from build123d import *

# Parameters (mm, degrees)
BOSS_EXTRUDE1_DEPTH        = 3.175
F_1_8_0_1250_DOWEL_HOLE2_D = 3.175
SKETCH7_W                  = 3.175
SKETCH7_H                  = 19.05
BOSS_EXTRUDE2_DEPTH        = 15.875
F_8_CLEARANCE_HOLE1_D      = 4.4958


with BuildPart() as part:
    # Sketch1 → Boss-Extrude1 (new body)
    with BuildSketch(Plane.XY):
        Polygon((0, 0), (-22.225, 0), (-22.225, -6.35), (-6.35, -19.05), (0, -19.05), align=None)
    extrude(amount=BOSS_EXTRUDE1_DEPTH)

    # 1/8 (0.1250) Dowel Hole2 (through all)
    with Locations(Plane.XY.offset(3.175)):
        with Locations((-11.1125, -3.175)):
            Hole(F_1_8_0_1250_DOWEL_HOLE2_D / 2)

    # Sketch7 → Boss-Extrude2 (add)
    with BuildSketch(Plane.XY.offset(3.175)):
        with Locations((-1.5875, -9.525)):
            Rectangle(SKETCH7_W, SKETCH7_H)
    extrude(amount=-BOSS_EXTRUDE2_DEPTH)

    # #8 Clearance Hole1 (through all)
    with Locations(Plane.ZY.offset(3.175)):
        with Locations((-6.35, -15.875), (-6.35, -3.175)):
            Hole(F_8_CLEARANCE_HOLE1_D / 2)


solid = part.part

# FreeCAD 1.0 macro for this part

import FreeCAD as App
import Part
import Sketcher
Q = App.Units.Quantity

doc = App.newDocument("Part")
body = doc.addObject("PartDesign::Body", "Body")

sketch1 = doc.addObject("Sketcher::SketchObject", "Sketch")
body.addObject(sketch1)
sketch1.AttachmentSupport = (doc.XY_Plane, [""])
sketch1.MapMode = "FlatFace"
sketch1.addGeometry([
    Part.LineSegment(App.Vector(0, 0, 0), App.Vector(-22.225, 0, 0)),
    Part.LineSegment(App.Vector(-22.225, 0, 0), App.Vector(-22.225, -6.35, 0)),
    Part.LineSegment(App.Vector(-22.225, -6.35, 0), App.Vector(-6.35, -19.05, 0)),
    Part.LineSegment(App.Vector(-6.35, -19.05, 0), App.Vector(0, -19.05, 0)),
    Part.LineSegment(App.Vector(0, -19.05, 0), App.Vector(0, 0, 0)),
], False)
sketch1.addConstraint([
    Sketcher.Constraint("Coincident", 0, 2, 1, 1),
    Sketcher.Constraint("Coincident", 1, 2, 2, 1),
    Sketcher.Constraint("Coincident", 2, 2, 3, 1),
    Sketcher.Constraint("Coincident", 3, 2, 4, 1),
    Sketcher.Constraint("Coincident", 4, 2, 0, 1),
    Sketcher.Constraint("Horizontal", 0),
    Sketcher.Constraint("Vertical", 1),
    Sketcher.Constraint("Horizontal", 3),
    Sketcher.Constraint("Vertical", 4),
    Sketcher.Constraint("Coincident", 4, 2, -1, 1),
    Sketcher.Constraint("Equal", 3, 1),
    Sketcher.Constraint("DistanceX", 3, 1, 3, 2, Q("0.25 in")),
    Sketcher.Constraint("DistanceY", 4, 1, 4, 2, Q("0.75 in")),
    Sketcher.Constraint("DistanceX", 0, 2, 0, 1, Q("0.875 in")),
])
pad1 = doc.addObject("PartDesign::Pad", "Pad")
body.addObject(pad1)
pad1.Profile = sketch1
pad1.Length = Q("0.125 in")

sketch2 = doc.addObject("Sketcher::SketchObject", "Sketch001")
body.addObject(sketch2)
sketch2.AttachmentSupport = (doc.XY_Plane, [""])
sketch2.MapMode = "FlatFace"
sketch2.AttachmentOffset = App.Placement(App.Vector(0, 0, 0.125 * 25.4), App.Rotation())
sketch2.addGeometry(Part.Circle(App.Vector(-11.1125, -3.175, 0), App.Vector(0, 0, 1), 1.5875), False)
sketch2.addConstraint([
    Sketcher.Constraint("Diameter", 0, Q("0.125 in")),
    Sketcher.Constraint("DistanceX", 0, 3, -1, 1, Q("0.4375 in")),
    Sketcher.Constraint("DistanceY", 0, 3, -1, 1, Q("0.125 in")),
])
doc.recompute()
hole = doc.addObject("PartDesign::Hole", "Hole")
body.addObject(hole)
hole.Profile = sketch2
hole.ThreadType = "None"
hole.Diameter = Q("0.125 in")
hole.DepthType = "ThroughAll"

sketch3 = doc.addObject("Sketcher::SketchObject", "Sketch002")
body.addObject(sketch3)
sketch3.AttachmentSupport = (doc.XY_Plane, [""])
sketch3.MapMode = "FlatFace"
sketch3.AttachmentOffset = App.Placement(App.Vector(0, 0, 0.125 * 25.4), App.Rotation())
sketch3.addGeometry([
    Part.LineSegment(App.Vector(-3.175, 0, 0), App.Vector(-3.175, -19.05, 0)),
    Part.LineSegment(App.Vector(-3.175, -19.05, 0), App.Vector(0, -19.05, 0)),
    Part.LineSegment(App.Vector(0, -19.05, 0), App.Vector(0, 0, 0)),
    Part.LineSegment(App.Vector(0, 0, 0), App.Vector(-3.175, 0, 0)),
], False)
sketch3.addConstraint([
    Sketcher.Constraint("Coincident", 0, 2, 1, 1),
    Sketcher.Constraint("Coincident", 1, 2, 2, 1),
    Sketcher.Constraint("Coincident", 2, 2, 3, 1),
    Sketcher.Constraint("Coincident", 3, 2, 0, 1),
    Sketcher.Constraint("Vertical", 0),
    Sketcher.Constraint("Horizontal", 1),
    Sketcher.Constraint("Vertical", 2),
    Sketcher.Constraint("Horizontal", 3),
    Sketcher.Constraint("Coincident", 2, 2, -1, 1),
    Sketcher.Constraint("DistanceY", 0, 2, 0, 1, Q("0.75 in")),
    Sketcher.Constraint("DistanceX", 1, 1, 1, 2, Q("0.125 in")),
])
pad2 = doc.addObject("PartDesign::Pad", "Pad001")
body.addObject(pad2)
pad2.Profile = sketch3
pad2.Length = Q("0.625 in")
pad2.Reversed = True

sketch4 = doc.addObject("Sketcher::SketchObject", "Sketch003")
body.addObject(sketch4)
sketch4.AttachmentSupport = (doc.YZ_Plane, [""])
sketch4.MapMode = "FlatFace"
sketch4.AttachmentOffset = App.Placement(App.Vector(0, 0, -0.125 * 25.4), App.Rotation())
sketch4.addGeometry([
    Part.Circle(App.Vector(-15.875, -6.35, 0), App.Vector(0, 0, 1), 2.2479),
    Part.Circle(App.Vector(-3.175, -6.35, 0), App.Vector(0, 0, 1), 2.2479),
], False)
sketch4.addConstraint([
    Sketcher.Constraint("Equal", 0, 1),
    Sketcher.Constraint("Horizontal", 0, 3, 1, 3),
    Sketcher.Constraint("Diameter", 0, Q("0.177 in")),
    Sketcher.Constraint("DistanceX", 0, 3, 1, 3, Q("0.5 in")),
    Sketcher.Constraint("DistanceY", 0, 3, -1, 1, Q("0.25 in")),
    Sketcher.Constraint("DistanceX", 0, 3, -1, 1, Q("0.625 in")),
])
doc.recompute()
hole2 = doc.addObject("PartDesign::Hole", "Hole001")
body.addObject(hole2)
hole2.Profile = sketch4
hole2.ThreadType = "None"
hole2.Diameter = Q("0.177 in")
hole2.DepthType = "ThroughAll"
hole2.Reversed = True

doc.recompute()
